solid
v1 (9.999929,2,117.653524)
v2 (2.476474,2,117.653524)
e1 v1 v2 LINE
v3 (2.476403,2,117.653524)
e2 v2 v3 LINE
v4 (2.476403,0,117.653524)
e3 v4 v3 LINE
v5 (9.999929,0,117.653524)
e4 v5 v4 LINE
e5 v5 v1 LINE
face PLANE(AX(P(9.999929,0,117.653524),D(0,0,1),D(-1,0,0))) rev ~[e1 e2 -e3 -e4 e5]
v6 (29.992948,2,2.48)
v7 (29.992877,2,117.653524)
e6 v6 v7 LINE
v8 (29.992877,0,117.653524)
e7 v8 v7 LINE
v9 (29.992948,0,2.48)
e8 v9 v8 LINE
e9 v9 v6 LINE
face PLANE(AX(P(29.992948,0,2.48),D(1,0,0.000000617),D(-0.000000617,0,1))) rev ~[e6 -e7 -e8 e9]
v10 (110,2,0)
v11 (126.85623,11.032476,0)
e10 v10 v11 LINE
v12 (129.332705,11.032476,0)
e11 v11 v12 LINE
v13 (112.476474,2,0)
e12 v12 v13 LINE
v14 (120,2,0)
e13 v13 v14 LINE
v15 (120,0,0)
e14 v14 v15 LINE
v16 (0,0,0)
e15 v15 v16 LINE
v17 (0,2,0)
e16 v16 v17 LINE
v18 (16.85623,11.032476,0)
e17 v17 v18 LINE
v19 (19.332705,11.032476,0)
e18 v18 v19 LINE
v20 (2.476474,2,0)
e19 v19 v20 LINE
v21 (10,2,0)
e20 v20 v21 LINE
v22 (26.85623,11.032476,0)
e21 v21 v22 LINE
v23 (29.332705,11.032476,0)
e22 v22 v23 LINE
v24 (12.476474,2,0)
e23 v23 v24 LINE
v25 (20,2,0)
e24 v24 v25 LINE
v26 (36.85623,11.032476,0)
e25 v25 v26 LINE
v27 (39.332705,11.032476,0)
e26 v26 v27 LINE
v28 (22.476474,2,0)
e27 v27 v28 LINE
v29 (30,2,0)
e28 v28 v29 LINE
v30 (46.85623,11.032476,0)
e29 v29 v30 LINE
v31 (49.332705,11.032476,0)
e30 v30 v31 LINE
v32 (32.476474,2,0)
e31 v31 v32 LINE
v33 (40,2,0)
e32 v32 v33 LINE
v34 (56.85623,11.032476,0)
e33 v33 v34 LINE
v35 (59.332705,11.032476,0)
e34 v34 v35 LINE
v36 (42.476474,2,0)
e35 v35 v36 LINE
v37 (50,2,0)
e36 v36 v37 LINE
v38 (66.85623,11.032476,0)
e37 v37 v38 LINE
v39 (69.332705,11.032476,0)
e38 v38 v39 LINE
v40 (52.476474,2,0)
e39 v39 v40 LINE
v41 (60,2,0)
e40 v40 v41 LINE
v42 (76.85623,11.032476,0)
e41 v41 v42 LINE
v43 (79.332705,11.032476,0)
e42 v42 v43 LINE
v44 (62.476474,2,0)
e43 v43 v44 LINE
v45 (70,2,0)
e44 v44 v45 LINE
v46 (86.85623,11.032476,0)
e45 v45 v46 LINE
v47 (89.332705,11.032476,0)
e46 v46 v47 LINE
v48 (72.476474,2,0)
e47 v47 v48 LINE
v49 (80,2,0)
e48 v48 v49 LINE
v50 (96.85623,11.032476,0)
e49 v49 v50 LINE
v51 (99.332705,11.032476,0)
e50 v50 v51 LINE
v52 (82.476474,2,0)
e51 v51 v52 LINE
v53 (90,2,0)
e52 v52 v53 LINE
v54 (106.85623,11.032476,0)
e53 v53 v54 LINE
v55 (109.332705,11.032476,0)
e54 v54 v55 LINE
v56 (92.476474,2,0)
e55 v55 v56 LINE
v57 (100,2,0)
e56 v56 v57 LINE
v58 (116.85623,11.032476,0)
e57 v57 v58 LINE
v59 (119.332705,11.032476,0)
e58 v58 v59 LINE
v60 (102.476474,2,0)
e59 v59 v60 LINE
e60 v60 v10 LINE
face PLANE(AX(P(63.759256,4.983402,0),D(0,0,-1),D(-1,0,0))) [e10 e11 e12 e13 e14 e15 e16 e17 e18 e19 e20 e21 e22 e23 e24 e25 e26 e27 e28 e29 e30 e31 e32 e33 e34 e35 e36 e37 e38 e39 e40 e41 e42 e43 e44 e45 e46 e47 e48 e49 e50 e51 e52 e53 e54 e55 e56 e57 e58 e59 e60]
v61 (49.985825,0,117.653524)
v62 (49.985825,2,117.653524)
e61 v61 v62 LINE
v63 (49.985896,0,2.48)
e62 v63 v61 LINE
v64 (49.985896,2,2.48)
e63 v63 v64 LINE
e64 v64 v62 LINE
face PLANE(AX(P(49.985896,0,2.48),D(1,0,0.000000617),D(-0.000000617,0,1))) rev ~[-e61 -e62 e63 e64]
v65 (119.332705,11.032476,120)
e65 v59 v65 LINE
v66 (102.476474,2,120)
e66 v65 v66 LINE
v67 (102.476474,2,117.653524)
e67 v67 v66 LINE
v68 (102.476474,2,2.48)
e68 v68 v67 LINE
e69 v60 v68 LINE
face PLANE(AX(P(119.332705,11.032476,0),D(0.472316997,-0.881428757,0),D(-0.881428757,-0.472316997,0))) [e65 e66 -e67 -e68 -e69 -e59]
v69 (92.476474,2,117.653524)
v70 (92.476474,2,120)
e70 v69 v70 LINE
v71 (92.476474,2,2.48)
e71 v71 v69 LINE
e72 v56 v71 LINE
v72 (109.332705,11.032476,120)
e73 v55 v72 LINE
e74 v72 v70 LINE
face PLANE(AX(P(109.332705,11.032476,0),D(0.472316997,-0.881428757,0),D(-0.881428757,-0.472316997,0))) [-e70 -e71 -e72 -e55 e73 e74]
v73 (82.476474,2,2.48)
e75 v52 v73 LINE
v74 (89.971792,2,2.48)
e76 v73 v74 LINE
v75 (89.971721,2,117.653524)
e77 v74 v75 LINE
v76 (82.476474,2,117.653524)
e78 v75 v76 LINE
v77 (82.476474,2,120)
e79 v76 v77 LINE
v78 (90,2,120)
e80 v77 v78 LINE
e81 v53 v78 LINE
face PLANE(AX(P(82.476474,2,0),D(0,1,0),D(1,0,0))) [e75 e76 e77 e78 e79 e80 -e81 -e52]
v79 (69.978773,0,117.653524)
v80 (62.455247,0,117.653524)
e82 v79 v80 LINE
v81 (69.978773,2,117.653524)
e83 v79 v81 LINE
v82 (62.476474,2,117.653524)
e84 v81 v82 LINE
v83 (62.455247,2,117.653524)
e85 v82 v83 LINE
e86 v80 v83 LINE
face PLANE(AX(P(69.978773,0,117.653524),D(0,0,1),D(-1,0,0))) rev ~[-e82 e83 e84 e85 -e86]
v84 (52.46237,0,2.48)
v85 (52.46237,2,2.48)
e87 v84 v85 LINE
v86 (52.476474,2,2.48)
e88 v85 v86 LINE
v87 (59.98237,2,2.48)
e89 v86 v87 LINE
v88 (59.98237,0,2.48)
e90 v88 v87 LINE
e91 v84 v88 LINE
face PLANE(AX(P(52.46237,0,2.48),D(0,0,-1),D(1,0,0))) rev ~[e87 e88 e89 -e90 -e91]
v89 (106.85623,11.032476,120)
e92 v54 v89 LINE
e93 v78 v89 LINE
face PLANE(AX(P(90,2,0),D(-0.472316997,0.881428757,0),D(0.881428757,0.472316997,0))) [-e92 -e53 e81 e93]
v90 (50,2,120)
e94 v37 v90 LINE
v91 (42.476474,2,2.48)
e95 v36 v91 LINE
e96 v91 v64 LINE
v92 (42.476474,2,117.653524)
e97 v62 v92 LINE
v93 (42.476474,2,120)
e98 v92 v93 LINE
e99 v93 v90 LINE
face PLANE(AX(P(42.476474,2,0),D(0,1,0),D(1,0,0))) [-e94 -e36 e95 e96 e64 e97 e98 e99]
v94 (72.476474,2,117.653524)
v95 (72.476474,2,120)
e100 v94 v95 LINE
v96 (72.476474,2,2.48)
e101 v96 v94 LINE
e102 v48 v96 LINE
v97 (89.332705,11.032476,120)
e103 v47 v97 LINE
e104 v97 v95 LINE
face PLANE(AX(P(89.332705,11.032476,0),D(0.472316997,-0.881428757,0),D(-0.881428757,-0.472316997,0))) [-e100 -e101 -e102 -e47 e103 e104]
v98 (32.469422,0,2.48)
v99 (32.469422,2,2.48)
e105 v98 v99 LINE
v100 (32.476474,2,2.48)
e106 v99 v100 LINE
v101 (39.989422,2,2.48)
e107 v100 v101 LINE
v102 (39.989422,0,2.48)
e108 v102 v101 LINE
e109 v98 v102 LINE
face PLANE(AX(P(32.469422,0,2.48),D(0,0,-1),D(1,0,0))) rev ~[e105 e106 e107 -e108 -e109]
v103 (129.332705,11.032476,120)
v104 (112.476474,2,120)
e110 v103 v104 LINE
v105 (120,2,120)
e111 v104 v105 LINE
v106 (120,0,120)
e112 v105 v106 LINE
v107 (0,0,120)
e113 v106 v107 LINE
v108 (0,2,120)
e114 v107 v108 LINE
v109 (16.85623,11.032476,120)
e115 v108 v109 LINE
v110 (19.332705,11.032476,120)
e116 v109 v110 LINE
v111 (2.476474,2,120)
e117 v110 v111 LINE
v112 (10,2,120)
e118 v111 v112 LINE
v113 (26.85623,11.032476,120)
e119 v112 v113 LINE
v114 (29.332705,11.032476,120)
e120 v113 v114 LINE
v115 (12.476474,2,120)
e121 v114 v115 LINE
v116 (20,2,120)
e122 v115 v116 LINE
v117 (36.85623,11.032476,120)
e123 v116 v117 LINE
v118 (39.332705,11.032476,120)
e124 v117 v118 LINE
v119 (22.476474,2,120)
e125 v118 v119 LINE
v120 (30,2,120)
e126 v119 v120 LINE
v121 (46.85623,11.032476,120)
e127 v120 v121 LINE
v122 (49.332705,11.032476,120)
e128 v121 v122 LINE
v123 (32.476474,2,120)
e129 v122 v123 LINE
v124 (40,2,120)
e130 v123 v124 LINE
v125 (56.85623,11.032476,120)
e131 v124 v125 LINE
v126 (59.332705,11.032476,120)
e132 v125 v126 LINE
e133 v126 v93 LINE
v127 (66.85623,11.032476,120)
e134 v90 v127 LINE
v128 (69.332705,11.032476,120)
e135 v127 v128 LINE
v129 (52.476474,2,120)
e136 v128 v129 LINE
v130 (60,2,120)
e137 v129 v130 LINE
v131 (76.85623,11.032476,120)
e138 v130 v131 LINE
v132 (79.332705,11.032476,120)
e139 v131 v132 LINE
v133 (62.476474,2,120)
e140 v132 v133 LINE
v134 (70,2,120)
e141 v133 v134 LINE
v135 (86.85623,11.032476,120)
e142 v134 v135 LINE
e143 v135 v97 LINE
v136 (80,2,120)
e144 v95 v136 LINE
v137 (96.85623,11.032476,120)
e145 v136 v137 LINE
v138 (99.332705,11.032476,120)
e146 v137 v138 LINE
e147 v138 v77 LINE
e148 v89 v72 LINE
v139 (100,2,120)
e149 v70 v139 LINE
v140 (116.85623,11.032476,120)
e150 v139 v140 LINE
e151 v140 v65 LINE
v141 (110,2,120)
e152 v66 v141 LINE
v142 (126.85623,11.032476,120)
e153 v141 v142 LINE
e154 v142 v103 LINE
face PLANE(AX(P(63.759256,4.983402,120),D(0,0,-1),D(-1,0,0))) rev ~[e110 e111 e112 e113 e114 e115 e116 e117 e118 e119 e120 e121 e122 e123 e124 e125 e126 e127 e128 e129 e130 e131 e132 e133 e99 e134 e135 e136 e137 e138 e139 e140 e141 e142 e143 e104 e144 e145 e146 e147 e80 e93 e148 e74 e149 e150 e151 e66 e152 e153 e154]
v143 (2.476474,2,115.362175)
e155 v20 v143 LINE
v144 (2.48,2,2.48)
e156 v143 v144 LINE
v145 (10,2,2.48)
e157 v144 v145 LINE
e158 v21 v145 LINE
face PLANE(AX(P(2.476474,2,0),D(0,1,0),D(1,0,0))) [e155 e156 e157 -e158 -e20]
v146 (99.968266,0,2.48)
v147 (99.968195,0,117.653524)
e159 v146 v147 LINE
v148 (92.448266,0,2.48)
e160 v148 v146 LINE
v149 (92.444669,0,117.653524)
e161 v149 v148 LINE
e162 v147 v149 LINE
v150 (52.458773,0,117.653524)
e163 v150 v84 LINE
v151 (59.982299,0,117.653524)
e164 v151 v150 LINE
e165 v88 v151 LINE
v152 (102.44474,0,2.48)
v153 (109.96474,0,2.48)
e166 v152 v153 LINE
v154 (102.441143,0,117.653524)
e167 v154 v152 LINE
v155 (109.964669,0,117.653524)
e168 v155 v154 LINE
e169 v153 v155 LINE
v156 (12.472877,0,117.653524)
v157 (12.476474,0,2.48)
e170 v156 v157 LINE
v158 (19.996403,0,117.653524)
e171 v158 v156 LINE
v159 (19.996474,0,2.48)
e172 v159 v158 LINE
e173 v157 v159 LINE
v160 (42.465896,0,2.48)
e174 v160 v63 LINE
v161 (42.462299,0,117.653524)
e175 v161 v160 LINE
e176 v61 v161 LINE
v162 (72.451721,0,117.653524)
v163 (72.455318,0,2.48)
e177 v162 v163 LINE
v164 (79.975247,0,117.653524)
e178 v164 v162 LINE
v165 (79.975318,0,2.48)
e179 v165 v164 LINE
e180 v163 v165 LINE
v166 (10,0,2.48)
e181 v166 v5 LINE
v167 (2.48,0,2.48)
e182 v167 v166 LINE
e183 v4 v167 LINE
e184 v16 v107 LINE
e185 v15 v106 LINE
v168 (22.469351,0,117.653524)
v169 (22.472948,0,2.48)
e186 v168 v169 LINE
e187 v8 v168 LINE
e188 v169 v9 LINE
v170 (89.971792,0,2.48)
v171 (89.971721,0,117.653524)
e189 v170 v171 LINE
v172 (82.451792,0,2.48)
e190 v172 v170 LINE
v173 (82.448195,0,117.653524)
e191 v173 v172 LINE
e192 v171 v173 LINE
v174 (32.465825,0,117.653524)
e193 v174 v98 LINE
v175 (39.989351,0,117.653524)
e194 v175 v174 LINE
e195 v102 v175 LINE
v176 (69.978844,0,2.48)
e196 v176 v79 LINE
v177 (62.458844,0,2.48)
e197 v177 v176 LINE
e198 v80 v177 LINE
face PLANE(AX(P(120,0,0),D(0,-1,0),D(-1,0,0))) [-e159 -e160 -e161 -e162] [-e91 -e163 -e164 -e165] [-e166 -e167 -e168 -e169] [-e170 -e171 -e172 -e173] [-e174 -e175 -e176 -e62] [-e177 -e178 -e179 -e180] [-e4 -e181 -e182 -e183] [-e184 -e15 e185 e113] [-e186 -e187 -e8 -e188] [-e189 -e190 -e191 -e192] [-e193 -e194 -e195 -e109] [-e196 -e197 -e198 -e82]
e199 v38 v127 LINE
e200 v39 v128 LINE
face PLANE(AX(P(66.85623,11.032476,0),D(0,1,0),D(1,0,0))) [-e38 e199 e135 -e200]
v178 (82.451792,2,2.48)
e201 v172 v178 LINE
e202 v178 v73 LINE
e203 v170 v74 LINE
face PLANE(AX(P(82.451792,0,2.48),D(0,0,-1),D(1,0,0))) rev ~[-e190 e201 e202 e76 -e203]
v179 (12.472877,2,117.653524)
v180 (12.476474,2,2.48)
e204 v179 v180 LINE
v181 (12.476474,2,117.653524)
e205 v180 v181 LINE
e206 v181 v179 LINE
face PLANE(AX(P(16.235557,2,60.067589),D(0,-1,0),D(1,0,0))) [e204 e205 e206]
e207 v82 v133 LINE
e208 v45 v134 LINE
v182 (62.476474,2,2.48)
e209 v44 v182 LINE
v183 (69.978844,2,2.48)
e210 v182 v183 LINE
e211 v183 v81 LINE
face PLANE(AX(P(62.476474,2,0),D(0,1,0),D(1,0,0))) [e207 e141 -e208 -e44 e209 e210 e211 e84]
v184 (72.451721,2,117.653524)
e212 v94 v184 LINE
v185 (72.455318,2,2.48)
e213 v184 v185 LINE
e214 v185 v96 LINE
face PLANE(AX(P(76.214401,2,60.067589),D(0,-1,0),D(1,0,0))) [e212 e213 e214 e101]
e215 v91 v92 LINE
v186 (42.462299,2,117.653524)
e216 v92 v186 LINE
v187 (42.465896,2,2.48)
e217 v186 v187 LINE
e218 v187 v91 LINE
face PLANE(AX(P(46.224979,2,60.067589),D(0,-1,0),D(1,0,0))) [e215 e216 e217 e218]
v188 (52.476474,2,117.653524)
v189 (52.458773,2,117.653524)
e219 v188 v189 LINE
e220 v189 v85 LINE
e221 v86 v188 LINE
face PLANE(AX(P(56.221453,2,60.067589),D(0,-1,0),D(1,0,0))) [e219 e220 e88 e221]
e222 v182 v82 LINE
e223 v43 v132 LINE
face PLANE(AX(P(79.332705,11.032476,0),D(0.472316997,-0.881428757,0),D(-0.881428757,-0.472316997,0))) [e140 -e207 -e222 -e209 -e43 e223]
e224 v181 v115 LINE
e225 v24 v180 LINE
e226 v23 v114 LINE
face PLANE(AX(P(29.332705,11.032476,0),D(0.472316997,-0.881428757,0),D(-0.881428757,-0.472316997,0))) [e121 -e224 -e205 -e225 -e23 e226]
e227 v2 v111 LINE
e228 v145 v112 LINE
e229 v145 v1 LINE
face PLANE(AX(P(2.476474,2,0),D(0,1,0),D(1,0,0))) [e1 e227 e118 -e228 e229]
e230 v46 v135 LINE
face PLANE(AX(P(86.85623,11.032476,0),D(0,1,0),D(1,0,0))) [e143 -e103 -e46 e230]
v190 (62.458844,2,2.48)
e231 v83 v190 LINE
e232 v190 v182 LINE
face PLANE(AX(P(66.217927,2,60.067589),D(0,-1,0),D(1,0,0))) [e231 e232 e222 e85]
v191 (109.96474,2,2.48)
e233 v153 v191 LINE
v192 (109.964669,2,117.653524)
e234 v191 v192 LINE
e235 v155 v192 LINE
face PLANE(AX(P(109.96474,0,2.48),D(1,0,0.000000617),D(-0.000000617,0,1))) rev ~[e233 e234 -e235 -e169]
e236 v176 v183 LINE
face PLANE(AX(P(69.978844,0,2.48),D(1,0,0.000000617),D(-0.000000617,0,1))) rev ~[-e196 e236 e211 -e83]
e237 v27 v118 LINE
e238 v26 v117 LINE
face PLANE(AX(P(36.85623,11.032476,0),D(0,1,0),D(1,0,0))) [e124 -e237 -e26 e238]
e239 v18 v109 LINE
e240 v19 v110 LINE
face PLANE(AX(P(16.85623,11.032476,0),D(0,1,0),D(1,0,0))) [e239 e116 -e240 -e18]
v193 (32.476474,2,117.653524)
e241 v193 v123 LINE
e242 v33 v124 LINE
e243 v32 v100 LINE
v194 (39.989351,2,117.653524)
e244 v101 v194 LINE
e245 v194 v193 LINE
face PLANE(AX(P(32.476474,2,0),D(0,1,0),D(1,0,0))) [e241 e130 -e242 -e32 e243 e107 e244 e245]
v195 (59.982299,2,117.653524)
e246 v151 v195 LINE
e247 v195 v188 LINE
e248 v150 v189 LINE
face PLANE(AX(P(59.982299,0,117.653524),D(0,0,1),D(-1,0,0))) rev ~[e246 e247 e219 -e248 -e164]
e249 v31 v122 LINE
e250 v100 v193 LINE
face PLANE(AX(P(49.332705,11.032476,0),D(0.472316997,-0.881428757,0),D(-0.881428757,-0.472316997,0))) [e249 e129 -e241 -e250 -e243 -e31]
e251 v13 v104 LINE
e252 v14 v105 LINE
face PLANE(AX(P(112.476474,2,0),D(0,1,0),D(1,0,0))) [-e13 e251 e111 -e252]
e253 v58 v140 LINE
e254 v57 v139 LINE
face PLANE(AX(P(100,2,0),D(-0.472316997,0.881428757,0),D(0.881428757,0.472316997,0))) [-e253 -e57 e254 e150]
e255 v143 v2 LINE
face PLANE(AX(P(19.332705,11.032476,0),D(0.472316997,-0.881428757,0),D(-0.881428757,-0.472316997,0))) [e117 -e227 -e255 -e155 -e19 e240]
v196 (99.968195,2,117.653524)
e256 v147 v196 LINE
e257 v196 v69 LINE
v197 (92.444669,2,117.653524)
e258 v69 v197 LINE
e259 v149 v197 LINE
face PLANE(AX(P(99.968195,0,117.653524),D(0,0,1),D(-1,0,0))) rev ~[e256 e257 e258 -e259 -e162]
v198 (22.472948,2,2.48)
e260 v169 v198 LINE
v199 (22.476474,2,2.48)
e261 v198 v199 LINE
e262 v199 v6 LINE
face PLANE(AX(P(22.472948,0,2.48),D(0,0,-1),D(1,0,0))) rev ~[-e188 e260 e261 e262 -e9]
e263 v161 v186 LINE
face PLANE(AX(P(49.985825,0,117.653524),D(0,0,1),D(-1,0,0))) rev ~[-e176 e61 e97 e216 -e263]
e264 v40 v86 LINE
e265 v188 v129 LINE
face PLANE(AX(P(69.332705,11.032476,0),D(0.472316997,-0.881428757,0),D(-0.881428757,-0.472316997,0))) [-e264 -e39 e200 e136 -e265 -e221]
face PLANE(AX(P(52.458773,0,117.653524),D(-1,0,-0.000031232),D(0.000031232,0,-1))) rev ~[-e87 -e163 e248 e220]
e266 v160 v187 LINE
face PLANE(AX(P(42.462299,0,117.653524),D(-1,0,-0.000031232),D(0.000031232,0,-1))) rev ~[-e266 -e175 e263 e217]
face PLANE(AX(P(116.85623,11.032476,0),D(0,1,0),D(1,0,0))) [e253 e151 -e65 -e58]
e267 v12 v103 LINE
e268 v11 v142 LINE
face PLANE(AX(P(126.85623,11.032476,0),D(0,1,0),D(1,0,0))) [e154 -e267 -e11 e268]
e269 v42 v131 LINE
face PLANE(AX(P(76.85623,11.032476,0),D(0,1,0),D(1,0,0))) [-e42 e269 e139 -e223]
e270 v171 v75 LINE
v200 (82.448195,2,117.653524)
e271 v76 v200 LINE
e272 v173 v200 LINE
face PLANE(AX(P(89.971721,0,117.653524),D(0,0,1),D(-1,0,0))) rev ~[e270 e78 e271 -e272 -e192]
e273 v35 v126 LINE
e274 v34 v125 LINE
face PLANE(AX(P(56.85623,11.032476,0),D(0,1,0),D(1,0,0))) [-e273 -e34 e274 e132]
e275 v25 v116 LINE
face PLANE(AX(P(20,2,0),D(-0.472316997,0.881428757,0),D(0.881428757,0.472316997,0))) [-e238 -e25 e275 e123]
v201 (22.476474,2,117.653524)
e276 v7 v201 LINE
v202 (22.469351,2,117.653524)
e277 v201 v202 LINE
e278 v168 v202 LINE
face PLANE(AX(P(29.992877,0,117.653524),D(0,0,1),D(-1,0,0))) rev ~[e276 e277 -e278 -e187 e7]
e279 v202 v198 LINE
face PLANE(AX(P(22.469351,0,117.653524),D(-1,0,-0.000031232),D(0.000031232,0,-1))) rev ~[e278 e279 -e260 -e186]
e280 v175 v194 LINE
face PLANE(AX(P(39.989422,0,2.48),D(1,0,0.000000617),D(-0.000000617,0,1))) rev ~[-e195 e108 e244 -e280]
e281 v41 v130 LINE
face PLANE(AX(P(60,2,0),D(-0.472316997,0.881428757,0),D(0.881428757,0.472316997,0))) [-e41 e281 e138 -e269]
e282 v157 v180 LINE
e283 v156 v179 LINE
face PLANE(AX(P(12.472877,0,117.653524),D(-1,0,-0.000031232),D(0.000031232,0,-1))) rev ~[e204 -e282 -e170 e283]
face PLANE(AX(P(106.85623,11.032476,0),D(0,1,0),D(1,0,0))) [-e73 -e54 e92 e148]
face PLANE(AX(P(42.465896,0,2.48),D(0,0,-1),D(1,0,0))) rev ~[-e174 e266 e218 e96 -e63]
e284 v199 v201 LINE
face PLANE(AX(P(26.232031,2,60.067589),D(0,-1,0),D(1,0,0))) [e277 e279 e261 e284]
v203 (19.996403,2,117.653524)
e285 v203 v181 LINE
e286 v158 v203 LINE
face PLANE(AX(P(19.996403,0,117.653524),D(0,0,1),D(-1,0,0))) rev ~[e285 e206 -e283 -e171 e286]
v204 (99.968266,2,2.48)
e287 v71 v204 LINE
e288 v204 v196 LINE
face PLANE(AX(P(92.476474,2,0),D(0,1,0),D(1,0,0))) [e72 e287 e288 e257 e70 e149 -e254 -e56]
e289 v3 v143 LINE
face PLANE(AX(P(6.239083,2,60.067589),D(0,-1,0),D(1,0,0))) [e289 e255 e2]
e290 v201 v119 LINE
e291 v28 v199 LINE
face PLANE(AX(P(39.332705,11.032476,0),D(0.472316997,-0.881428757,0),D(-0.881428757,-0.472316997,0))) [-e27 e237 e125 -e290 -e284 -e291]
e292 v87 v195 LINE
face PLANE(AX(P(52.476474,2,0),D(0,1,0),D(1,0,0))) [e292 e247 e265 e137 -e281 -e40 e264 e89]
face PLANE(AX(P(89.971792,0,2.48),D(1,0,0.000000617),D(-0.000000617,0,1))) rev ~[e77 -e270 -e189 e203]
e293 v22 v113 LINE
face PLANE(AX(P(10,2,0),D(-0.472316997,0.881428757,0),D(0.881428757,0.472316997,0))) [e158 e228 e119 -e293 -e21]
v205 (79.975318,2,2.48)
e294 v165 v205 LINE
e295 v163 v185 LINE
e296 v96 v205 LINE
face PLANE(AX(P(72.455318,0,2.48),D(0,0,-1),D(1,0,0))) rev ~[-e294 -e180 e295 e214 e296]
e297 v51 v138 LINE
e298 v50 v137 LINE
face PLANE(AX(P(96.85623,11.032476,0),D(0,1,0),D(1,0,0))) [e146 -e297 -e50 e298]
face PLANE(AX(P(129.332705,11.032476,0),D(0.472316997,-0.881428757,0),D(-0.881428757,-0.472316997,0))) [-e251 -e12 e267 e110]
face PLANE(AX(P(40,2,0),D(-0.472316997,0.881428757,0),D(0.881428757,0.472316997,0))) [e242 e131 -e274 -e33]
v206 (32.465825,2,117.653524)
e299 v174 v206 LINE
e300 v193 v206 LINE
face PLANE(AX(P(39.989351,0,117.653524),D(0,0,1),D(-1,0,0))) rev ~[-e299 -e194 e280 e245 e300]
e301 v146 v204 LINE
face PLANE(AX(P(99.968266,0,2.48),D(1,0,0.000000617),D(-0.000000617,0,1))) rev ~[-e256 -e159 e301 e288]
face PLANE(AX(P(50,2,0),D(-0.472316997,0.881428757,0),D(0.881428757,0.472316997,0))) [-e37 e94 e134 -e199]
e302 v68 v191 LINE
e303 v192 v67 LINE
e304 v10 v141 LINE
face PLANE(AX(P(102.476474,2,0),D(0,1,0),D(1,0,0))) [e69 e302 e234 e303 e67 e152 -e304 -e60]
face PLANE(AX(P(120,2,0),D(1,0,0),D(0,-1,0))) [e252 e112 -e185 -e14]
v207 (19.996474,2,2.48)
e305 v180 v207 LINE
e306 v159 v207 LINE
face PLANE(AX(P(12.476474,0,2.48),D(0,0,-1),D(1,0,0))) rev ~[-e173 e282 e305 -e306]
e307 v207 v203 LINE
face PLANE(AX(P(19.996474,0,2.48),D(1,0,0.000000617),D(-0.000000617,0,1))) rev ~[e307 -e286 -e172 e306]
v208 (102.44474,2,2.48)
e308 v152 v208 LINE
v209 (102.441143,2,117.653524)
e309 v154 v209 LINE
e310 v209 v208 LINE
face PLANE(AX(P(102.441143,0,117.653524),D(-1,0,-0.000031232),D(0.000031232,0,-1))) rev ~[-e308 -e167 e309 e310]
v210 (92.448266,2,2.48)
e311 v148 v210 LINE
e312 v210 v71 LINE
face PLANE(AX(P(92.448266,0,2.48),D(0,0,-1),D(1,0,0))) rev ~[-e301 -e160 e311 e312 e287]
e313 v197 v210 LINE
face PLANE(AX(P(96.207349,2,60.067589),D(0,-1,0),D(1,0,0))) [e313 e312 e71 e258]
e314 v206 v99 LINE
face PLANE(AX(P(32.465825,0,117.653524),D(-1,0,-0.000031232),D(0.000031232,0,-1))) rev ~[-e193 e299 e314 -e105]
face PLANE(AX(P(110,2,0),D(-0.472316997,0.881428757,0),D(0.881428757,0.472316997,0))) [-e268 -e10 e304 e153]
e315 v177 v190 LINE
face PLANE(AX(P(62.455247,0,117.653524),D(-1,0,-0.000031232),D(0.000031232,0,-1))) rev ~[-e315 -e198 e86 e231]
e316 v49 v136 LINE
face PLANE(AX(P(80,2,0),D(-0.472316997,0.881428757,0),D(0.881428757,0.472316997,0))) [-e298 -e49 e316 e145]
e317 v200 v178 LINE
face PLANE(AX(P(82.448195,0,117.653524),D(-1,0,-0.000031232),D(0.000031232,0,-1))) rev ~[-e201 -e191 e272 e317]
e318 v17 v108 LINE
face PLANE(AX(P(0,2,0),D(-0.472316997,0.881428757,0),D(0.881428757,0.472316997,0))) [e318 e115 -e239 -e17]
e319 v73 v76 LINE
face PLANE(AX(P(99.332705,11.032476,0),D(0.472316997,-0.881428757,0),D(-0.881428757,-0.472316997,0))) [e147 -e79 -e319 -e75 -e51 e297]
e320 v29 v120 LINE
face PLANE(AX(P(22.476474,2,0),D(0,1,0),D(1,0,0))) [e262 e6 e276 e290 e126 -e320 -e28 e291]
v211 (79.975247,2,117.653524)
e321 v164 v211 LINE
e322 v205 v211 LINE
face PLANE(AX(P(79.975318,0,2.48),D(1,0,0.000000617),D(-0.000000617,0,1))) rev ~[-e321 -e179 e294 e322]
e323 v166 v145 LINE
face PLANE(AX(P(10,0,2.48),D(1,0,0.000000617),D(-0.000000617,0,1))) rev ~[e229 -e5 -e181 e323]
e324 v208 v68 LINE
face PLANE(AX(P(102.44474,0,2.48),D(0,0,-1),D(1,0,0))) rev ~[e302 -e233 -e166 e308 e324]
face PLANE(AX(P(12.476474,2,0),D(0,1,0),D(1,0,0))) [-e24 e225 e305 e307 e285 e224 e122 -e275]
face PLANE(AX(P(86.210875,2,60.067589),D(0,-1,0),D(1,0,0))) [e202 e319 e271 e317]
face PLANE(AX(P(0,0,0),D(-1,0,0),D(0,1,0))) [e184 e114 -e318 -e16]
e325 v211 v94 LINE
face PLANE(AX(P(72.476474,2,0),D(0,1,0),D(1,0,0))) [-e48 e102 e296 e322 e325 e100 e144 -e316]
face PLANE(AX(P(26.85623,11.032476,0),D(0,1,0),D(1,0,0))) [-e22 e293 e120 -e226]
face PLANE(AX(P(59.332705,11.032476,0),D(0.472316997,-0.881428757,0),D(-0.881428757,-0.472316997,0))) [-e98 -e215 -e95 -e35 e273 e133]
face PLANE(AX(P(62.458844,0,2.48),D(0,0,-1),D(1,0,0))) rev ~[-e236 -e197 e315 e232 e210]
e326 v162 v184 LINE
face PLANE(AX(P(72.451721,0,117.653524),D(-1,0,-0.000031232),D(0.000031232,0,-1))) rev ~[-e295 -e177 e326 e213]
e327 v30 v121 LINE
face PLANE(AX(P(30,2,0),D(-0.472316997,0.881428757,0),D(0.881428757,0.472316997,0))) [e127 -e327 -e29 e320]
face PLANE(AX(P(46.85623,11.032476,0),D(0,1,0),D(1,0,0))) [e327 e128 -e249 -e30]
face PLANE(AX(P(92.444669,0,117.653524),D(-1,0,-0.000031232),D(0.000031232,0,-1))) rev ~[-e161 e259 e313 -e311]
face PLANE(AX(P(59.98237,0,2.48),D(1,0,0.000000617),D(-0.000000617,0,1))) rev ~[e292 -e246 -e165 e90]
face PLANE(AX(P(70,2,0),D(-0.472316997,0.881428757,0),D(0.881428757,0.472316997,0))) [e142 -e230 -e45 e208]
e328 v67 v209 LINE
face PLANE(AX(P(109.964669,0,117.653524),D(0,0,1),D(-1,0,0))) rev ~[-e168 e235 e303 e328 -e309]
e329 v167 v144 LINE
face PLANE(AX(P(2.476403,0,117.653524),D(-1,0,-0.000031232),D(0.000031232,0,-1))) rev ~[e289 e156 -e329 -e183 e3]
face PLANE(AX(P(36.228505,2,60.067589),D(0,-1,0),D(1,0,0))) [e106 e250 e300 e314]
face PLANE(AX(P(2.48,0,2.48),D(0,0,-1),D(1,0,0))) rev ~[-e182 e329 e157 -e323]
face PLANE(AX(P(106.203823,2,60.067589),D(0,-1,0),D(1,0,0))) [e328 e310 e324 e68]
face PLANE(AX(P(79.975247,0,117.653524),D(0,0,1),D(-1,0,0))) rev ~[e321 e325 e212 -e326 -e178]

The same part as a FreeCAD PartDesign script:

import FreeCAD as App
import Part
import Sketcher

V = App.Vector

doc = App.newDocument("Part")
body = doc.addObject("PartDesign::Body", "Body")

sketch1 = body.newObject("Sketcher::SketchObject", "Sketch")
sketch1.AttachmentSupport = (doc.getObject("XY_Plane"), [""])
sketch1.MapMode = "FlatFace"
sketch1.addGeometry(Part.LineSegment(V(16.85623, 11.032476, 0), V(0, 2, 0)), False)
sketch1.addGeometry(Part.LineSegment(V(0, 2, 0), V(0, 0, 0)), False)
sketch1.addGeometry(Part.LineSegment(V(0, 0, 0), V(120, 0, 0)), False)
sketch1.addGeometry(Part.LineSegment(V(120, 0, 0), V(120, 2, 0)), False)
sketch1.addGeometry(Part.LineSegment(V(120, 2, 0), V(112.476474, 2, 0)), False)
sketch1.addGeometry(Part.LineSegment(V(112.476474, 2, 0), V(129.332705, 11.032476, 0)), False)
sketch1.addGeometry(Part.LineSegment(V(129.332705, 11.032476, 0), V(126.85623, 11.032476, 0)), False)
sketch1.addGeometry(Part.LineSegment(V(126.85623, 11.032476, 0), V(110, 2, 0)), False)
sketch1.addGeometry(Part.LineSegment(V(110, 2, 0), V(102.476474, 2, 0)), False)
sketch1.addGeometry(Part.LineSegment(V(102.476474, 2, 0), V(119.332705, 11.032476, 0)), False)
sketch1.addGeometry(Part.LineSegment(V(119.332705, 11.032476, 0), V(116.85623, 11.032476, 0)), False)
sketch1.addGeometry(Part.LineSegment(V(116.85623, 11.032476, 0), V(100, 2, 0)), False)
sketch1.addGeometry(Part.LineSegment(V(100, 2, 0), V(92.476474, 2, 0)), False)
sketch1.addGeometry(Part.LineSegment(V(92.476474, 2, 0), V(109.332705, 11.032476, 0)), False)
sketch1.addGeometry(Part.LineSegment(V(109.332705, 11.032476, 0), V(106.85623, 11.032476, 0)), False)
sketch1.addGeometry(Part.LineSegment(V(106.85623, 11.032476, 0), V(90, 2, 0)), False)
sketch1.addGeometry(Part.LineSegment(V(90, 2, 0), V(82.476474, 2, 0)), False)
sketch1.addGeometry(Part.LineSegment(V(82.476474, 2, 0), V(99.332705, 11.032476, 0)), False)
sketch1.addGeometry(Part.LineSegment(V(99.332705, 11.032476, 0), V(96.85623, 11.032476, 0)), False)
sketch1.addGeometry(Part.LineSegment(V(96.85623, 11.032476, 0), V(80, 2, 0)), False)
sketch1.addGeometry(Part.LineSegment(V(80, 2, 0), V(72.476474, 2, 0)), False)
sketch1.addGeometry(Part.LineSegment(V(72.476474, 2, 0), V(89.332705, 11.032476, 0)), False)
sketch1.addGeometry(Part.LineSegment(V(89.332705, 11.032476, 0), V(86.85623, 11.032476, 0)), False)
sketch1.addGeometry(Part.LineSegment(V(86.85623, 11.032476, 0), V(70, 2, 0)), False)
sketch1.addGeometry(Part.LineSegment(V(70, 2, 0), V(62.476474, 2, 0)), False)
sketch1.addGeometry(Part.LineSegment(V(62.476474, 2, 0), V(79.332705, 11.032476, 0)), False)
sketch1.addGeometry(Part.LineSegment(V(79.332705, 11.032476, 0), V(76.85623, 11.032476, 0)), False)
sketch1.addGeometry(Part.LineSegment(V(76.85623, 11.032476, 0), V(60, 2, 0)), False)
sketch1.addGeometry(Part.LineSegment(V(60, 2, 0), V(52.476474, 2, 0)), False)
sketch1.addGeometry(Part.LineSegment(V(52.476474, 2, 0), V(69.332705, 11.032476, 0)), False)
sketch1.addGeometry(Part.LineSegment(V(69.332705, 11.032476, 0), V(66.85623, 11.032476, 0)), False)
sketch1.addGeometry(Part.LineSegment(V(66.85623, 11.032476, 0), V(50, 2, 0)), False)
sketch1.addGeometry(Part.LineSegment(V(50, 2, 0), V(42.476474, 2, 0)), False)
sketch1.addGeometry(Part.LineSegment(V(42.476474, 2, 0), V(59.332705, 11.032476, 0)), False)
sketch1.addGeometry(Part.LineSegment(V(59.332705, 11.032476, 0), V(56.85623, 11.032476, 0)), False)
sketch1.addGeometry(Part.LineSegment(V(56.85623, 11.032476, 0), V(40, 2, 0)), False)
sketch1.addGeometry(Part.LineSegment(V(40, 2, 0), V(32.476474, 2, 0)), False)
sketch1.addGeometry(Part.LineSegment(V(32.476474, 2, 0), V(49.332705, 11.032476, 0)), False)
sketch1.addGeometry(Part.LineSegment(V(49.332705, 11.032476, 0), V(46.85623, 11.032476, 0)), False)
sketch1.addGeometry(Part.LineSegment(V(46.85623, 11.032476, 0), V(30, 2, 0)), False)
sketch1.addGeometry(Part.LineSegment(V(30, 2, 0), V(22.476474, 2, 0)), False)
sketch1.addGeometry(Part.LineSegment(V(22.476474, 2, 0), V(39.332705, 11.032476, 0)), False)
sketch1.addGeometry(Part.LineSegment(V(39.332705, 11.032476, 0), V(36.85623, 11.032476, 0)), False)
sketch1.addGeometry(Part.LineSegment(V(36.85623, 11.032476, 0), V(20, 2, 0)), False)
sketch1.addGeometry(Part.LineSegment(V(20, 2, 0), V(12.476474, 2, 0)), False)
sketch1.addGeometry(Part.LineSegment(V(12.476474, 2, 0), V(29.332705, 11.032476, 0)), False)
sketch1.addGeometry(Part.LineSegment(V(29.332705, 11.032476, 0), V(26.85623, 11.032476, 0)), False)
sketch1.addGeometry(Part.LineSegment(V(26.85623, 11.032476, 0), V(10, 2, 0)), False)
sketch1.addGeometry(Part.LineSegment(V(10, 2, 0), V(2.476474, 2, 0)), False)
sketch1.addGeometry(Part.LineSegment(V(2.476474, 2, 0), V(19.332705, 11.032476, 0)), False)
sketch1.addGeometry(Part.LineSegment(V(19.332705, 11.032476, 0), V(16.85623, 11.032476, 0)), False)
sketch1.addConstraint(Sketcher.Constraint("Coincident", 0, 2, 1, 1))
sketch1.addConstraint(Sketcher.Constraint("Coincident", 1, 2, 2, 1))
sketch1.addConstraint(Sketcher.Constraint("Coincident", 2, 2, 3, 1))
sketch1.addConstraint(Sketcher.Constraint("Coincident", 3, 2, 4, 1))
sketch1.addConstraint(Sketcher.Constraint("Coincident", 4, 2, 5, 1))
sketch1.addConstraint(Sketcher.Constraint("Coincident", 5, 2, 6, 1))
sketch1.addConstraint(Sketcher.Constraint("Coincident", 6, 2, 7, 1))
sketch1.addConstraint(Sketcher.Constraint("Coincident", 7, 2, 8, 1))
sketch1.addConstraint(Sketcher.Constraint("Coincident", 8, 2, 9, 1))
sketch1.addConstraint(Sketcher.Constraint("Coincident", 9, 2, 10, 1))
sketch1.addConstraint(Sketcher.Constraint("Coincident", 10, 2, 11, 1))
sketch1.addConstraint(Sketcher.Constraint("Coincident", 11, 2, 12, 1))
sketch1.addConstraint(Sketcher.Constraint("Coincident", 12, 2, 13, 1))
sketch1.addConstraint(Sketcher.Constraint("Coincident", 13, 2, 14, 1))
sketch1.addConstraint(Sketcher.Constraint("Coincident", 14, 2, 15, 1))
sketch1.addConstraint(Sketcher.Constraint("Coincident", 15, 2, 16, 1))
sketch1.addConstraint(Sketcher.Constraint("Coincident", 16, 2, 17, 1))
sketch1.addConstraint(Sketcher.Constraint("Coincident", 17, 2, 18, 1))
sketch1.addConstraint(Sketcher.Constraint("Coincident", 18, 2, 19, 1))
sketch1.addConstraint(Sketcher.Constraint("Coincident", 19, 2, 20, 1))
sketch1.addConstraint(Sketcher.Constraint("Coincident", 20, 2, 21, 1))
sketch1.addConstraint(Sketcher.Constraint("Coincident", 21, 2, 22, 1))
sketch1.addConstraint(Sketcher.Constraint("Coincident", 22, 2, 23, 1))
sketch1.addConstraint(Sketcher.Constraint("Coincident", 23, 2, 24, 1))
sketch1.addConstraint(Sketcher.Constraint("Coincident", 24, 2, 25, 1))
sketch1.addConstraint(Sketcher.Constraint("Coincident", 25, 2, 26, 1))
sketch1.addConstraint(Sketcher.Constraint("Coincident", 26, 2, 27, 1))
sketch1.addConstraint(Sketcher.Constraint("Coincident", 27, 2, 28, 1))
sketch1.addConstraint(Sketcher.Constraint("Coincident", 28, 2, 29, 1))
sketch1.addConstraint(Sketcher.Constraint("Coincident", 29, 2, 30, 1))
sketch1.addConstraint(Sketcher.Constraint("Coincident", 30, 2, 31, 1))
sketch1.addConstraint(Sketcher.Constraint("Coincident", 31, 2, 32, 1))
sketch1.addConstraint(Sketcher.Constraint("Coincident", 32, 2, 33, 1))
sketch1.addConstraint(Sketcher.Constraint("Coincident", 33, 2, 34, 1))
sketch1.addConstraint(Sketcher.Constraint("Coincident", 34, 2, 35, 1))
sketch1.addConstraint(Sketcher.Constraint("Coincident", 35, 2, 36, 1))
sketch1.addConstraint(Sketcher.Constraint("Coincident", 36, 2, 37, 1))
sketch1.addConstraint(Sketcher.Constraint("Coincident", 37, 2, 38, 1))
sketch1.addConstraint(Sketcher.Constraint("Coincident", 38, 2, 39, 1))
sketch1.addConstraint(Sketcher.Constraint("Coincident", 39, 2, 40, 1))
sketch1.addConstraint(Sketcher.Constraint("Coincident", 40, 2, 41, 1))
sketch1.addConstraint(Sketcher.Constraint("Coincident", 41, 2, 42, 1))
sketch1.addConstraint(Sketcher.Constraint("Coincident", 42, 2, 43, 1))
sketch1.addConstraint(Sketcher.Constraint("Coincident", 43, 2, 44, 1))
sketch1.addConstraint(Sketcher.Constraint("Coincident", 44, 2, 45, 1))
sketch1.addConstraint(Sketcher.Constraint("Coincident", 45, 2, 46, 1))
sketch1.addConstraint(Sketcher.Constraint("Coincident", 46, 2, 47, 1))
sketch1.addConstraint(Sketcher.Constraint("Coincident", 47, 2, 48, 1))
sketch1.addConstraint(Sketcher.Constraint("Coincident", 48, 2, 49, 1))
sketch1.addConstraint(Sketcher.Constraint("Coincident", 49, 2, 50, 1))
sketch1.addConstraint(Sketcher.Constraint("Coincident", 50, 2, 0, 1))
sketch1.addConstraint(Sketcher.Constraint("Vertical", 1))
sketch1.addConstraint(Sketcher.Constraint("Horizontal", 2))
sketch1.addConstraint(Sketcher.Constraint("Vertical", 3))
sketch1.addConstraint(Sketcher.Constraint("Horizontal", 4))
sketch1.addConstraint(Sketcher.Constraint("Horizontal", 6))
sketch1.addConstraint(Sketcher.Constraint("Horizontal", 8))
sketch1.addConstraint(Sketcher.Constraint("Horizontal", 10))
sketch1.addConstraint(Sketcher.Constraint("Horizontal", 12))
sketch1.addConstraint(Sketcher.Constraint("Horizontal", 14))
sketch1.addConstraint(Sketcher.Constraint("Horizontal", 16))
sketch1.addConstraint(Sketcher.Constraint("Horizontal", 18))
sketch1.addConstraint(Sketcher.Constraint("Horizontal", 20))
sketch1.addConstraint(Sketcher.Constraint("Horizontal", 22))
sketch1.addConstraint(Sketcher.Constraint("Horizontal", 24))
sketch1.addConstraint(Sketcher.Constraint("Horizontal", 26))
sketch1.addConstraint(Sketcher.Constraint("Horizontal", 28))
sketch1.addConstraint(Sketcher.Constraint("Horizontal", 30))
sketch1.addConstraint(Sketcher.Constraint("Horizontal", 32))
sketch1.addConstraint(Sketcher.Constraint("Horizontal", 34))
sketch1.addConstraint(Sketcher.Constraint("Horizontal", 36))
sketch1.addConstraint(Sketcher.Constraint("Horizontal", 38))
sketch1.addConstraint(Sketcher.Constraint("Horizontal", 40))
sketch1.addConstraint(Sketcher.Constraint("Horizontal", 42))
sketch1.addConstraint(Sketcher.Constraint("Horizontal", 44))
sketch1.addConstraint(Sketcher.Constraint("Horizontal", 46))
sketch1.addConstraint(Sketcher.Constraint("Horizontal", 48))
sketch1.addConstraint(Sketcher.Constraint("Horizontal", 50))
sketch1.addConstraint(Sketcher.Constraint("Coincident", 1, 2, -1, 1))
sketch1.addConstraint(Sketcher.Constraint("Parallel", 0, 5))
sketch1.addConstraint(Sketcher.Constraint("Parallel", 5, 7))
sketch1.addConstraint(Sketcher.Constraint("Parallel", 7, 9))
sketch1.addConstraint(Sketcher.Constraint("Parallel", 9, 11))
sketch1.addConstraint(Sketcher.Constraint("Parallel", 11, 13))
sketch1.addConstraint(Sketcher.Constraint("Parallel", 13, 15))
sketch1.addConstraint(Sketcher.Constraint("Parallel", 15, 17))
sketch1.addConstraint(Sketcher.Constraint("Parallel", 17, 19))
sketch1.addConstraint(Sketcher.Constraint("Parallel", 19, 21))
sketch1.addConstraint(Sketcher.Constraint("Parallel", 21, 23))
sketch1.addConstraint(Sketcher.Constraint("Parallel", 23, 25))
sketch1.addConstraint(Sketcher.Constraint("Parallel", 25, 27))
sketch1.addConstraint(Sketcher.Constraint("Parallel", 27, 29))
sketch1.addConstraint(Sketcher.Constraint("Parallel", 29, 31))
sketch1.addConstraint(Sketcher.Constraint("Parallel", 31, 33))
sketch1.addConstraint(Sketcher.Constraint("Parallel", 33, 35))
sketch1.addConstraint(Sketcher.Constraint("Parallel", 35, 37))
sketch1.addConstraint(Sketcher.Constraint("Parallel", 37, 39))
sketch1.addConstraint(Sketcher.Constraint("Parallel", 39, 41))
sketch1.addConstraint(Sketcher.Constraint("Parallel", 41, 43))
sketch1.addConstraint(Sketcher.Constraint("Parallel", 43, 45))
sketch1.addConstraint(Sketcher.Constraint("Parallel", 45, 47))
sketch1.addConstraint(Sketcher.Constraint("Parallel", 47, 49))
sketch1.addConstraint(Sketcher.Constraint("Horizontal", 0, 2, 3, 2))
sketch1.addConstraint(Sketcher.Constraint("Horizontal", 4, 2, 7, 2))
sketch1.addConstraint(Sketcher.Constraint("Horizontal", 6, 2, 9, 2))
sketch1.addConstraint(Sketcher.Constraint("Horizontal", 8, 2, 11, 2))
sketch1.addConstraint(Sketcher.Constraint("Horizontal", 10, 2, 13, 2))
sketch1.addConstraint(Sketcher.Constraint("Horizontal", 12, 2, 15, 2))
sketch1.addConstraint(Sketcher.Constraint("Horizontal", 14, 2, 17, 2))
sketch1.addConstraint(Sketcher.Constraint("Horizontal", 16, 2, 19, 2))
sketch1.addConstraint(Sketcher.Constraint("Horizontal", 18, 2, 21, 2))
sketch1.addConstraint(Sketcher.Constraint("Horizontal", 20, 2, 23, 2))
sketch1.addConstraint(Sketcher.Constraint("Horizontal", 22, 2, 25, 2))
sketch1.addConstraint(Sketcher.Constraint("Horizontal", 24, 2, 27, 2))
sketch1.addConstraint(Sketcher.Constraint("Horizontal", 26, 2, 29, 2))
sketch1.addConstraint(Sketcher.Constraint("Horizontal", 28, 2, 31, 2))
sketch1.addConstraint(Sketcher.Constraint("Horizontal", 30, 2, 33, 2))
sketch1.addConstraint(Sketcher.Constraint("Horizontal", 32, 2, 35, 2))
sketch1.addConstraint(Sketcher.Constraint("Horizontal", 34, 2, 37, 2))
sketch1.addConstraint(Sketcher.Constraint("Horizontal", 36, 2, 39, 2))
sketch1.addConstraint(Sketcher.Constraint("Horizontal", 38, 2, 41, 2))
sketch1.addConstraint(Sketcher.Constraint("Horizontal", 40, 2, 43, 2))
sketch1.addConstraint(Sketcher.Constraint("Horizontal", 42, 2, 45, 2))
sketch1.addConstraint(Sketcher.Constraint("Horizontal", 44, 2, 47, 2))
sketch1.addConstraint(Sketcher.Constraint("Horizontal", 46, 2, 49, 2))
sketch1.addConstraint(Sketcher.Constraint("Equal", 4, 8))
sketch1.addConstraint(Sketcher.Constraint("Equal", 6, 10))
sketch1.addConstraint(Sketcher.Constraint("Equal", 8, 12))
sketch1.addConstraint(Sketcher.Constraint("Equal", 10, 14))
sketch1.addConstraint(Sketcher.Constraint("Equal", 12, 16))
sketch1.addConstraint(Sketcher.Constraint("Equal", 14, 18))
sketch1.addConstraint(Sketcher.Constraint("Equal", 16, 20))
sketch1.addConstraint(Sketcher.Constraint("Equal", 18, 22))
sketch1.addConstraint(Sketcher.Constraint("Equal", 20, 24))
sketch1.addConstraint(Sketcher.Constraint("Equal", 22, 26))
sketch1.addConstraint(Sketcher.Constraint("Equal", 24, 28))
sketch1.addConstraint(Sketcher.Constraint("Equal", 26, 30))
sketch1.addConstraint(Sketcher.Constraint("Equal", 28, 32))
sketch1.addConstraint(Sketcher.Constraint("Equal", 30, 34))
sketch1.addConstraint(Sketcher.Constraint("Equal", 32, 36))
sketch1.addConstraint(Sketcher.Constraint("Equal", 34, 38))
sketch1.addConstraint(Sketcher.Constraint("Equal", 36, 40))
sketch1.addConstraint(Sketcher.Constraint("Equal", 38, 42))
sketch1.addConstraint(Sketcher.Constraint("Equal", 40, 44))
sketch1.addConstraint(Sketcher.Constraint("Equal", 42, 46))
sketch1.addConstraint(Sketcher.Constraint("Equal", 44, 48))
sketch1.addConstraint(Sketcher.Constraint("Equal", 46, 50))
sketch1.addConstraint(Sketcher.Constraint("DistanceX", 2, 1, 2, 2, 120.0))
sketch1.addConstraint(Sketcher.Constraint("DistanceY", 1, 2, 1, 1, 2.0))
sketch1.addConstraint(Sketcher.Constraint("DistanceX", 4, 2, 4, 1, 7.523526))
sketch1.addConstraint(Sketcher.Constraint("DistanceX", -1, 1, 6, 2, 126.85623))
sketch1.addConstraint(Sketcher.Constraint("Distance", 0, 19.123758))
pad1 = body.newObject("PartDesign::Pad", "Pad")
pad1.Profile = sketch1
pad1.Length = 120

sketch2 = body.newObject("Sketcher::SketchObject", "Sketch001")
sketch2.AttachmentSupport = (doc.getObject("XZ_Plane"), [""])
sketch2.MapMode = "FlatFace"
sketch2.addGeometry(Part.LineSegment(V(2.476403, 117.653524, 0), V(2.48, 2.48, 0)), False)
sketch2.addGeometry(Part.LineSegment(V(2.48, 2.48, 0), V(10, 2.48, 0)), False)
sketch2.addGeometry(Part.LineSegment(V(10, 2.48, 0), V(9.999929, 117.653524, 0)), False)
sketch2.addGeometry(Part.LineSegment(V(9.999929, 117.653524, 0), V(2.476403, 117.653524, 0)), False)
sketch2.addGeometry(Part.LineSegment(V(19.996403, 117.653524, 0), V(12.472877, 117.653524, 0)), False)
sketch2.addGeometry(Part.LineSegment(V(12.472877, 117.653524, 0), V(12.476474, 2.48, 0)), False)
sketch2.addGeometry(Part.LineSegment(V(12.476474, 2.48, 0), V(19.996474, 2.48, 0)), False)
sketch2.addGeometry(Part.LineSegment(V(19.996474, 2.48, 0), V(19.996403, 117.653524, 0)), False)
sketch2.addGeometry(Part.LineSegment(V(32.465825, 117.653524, 0), V(32.469422, 2.48, 0)), False)
sketch2.addGeometry(Part.LineSegment(V(32.469422, 2.48, 0), V(39.989422, 2.48, 0)), False)
sketch2.addGeometry(Part.LineSegment(V(39.989422, 2.48, 0), V(39.989351, 117.653524, 0)), False)
sketch2.addGeometry(Part.LineSegment(V(39.989351, 117.653524, 0), V(32.465825, 117.653524, 0)), False)
sketch2.addGeometry(Part.LineSegment(V(42.462299, 117.653524, 0), V(42.465896, 2.48, 0)), False)
sketch2.addGeometry(Part.LineSegment(V(42.465896, 2.48, 0), V(49.985896, 2.48, 0)), False)
sketch2.addGeometry(Part.LineSegment(V(49.985896, 2.48, 0), V(49.985825, 117.653524, 0)), False)
sketch2.addGeometry(Part.LineSegment(V(49.985825, 117.653524, 0), V(42.462299, 117.653524, 0)), False)
sketch2.addGeometry(Part.LineSegment(V(52.458773, 117.653524, 0), V(52.46237, 2.48, 0)), False)
sketch2.addGeometry(Part.LineSegment(V(52.46237, 2.48, 0), V(59.98237, 2.48, 0)), False)
sketch2.addGeometry(Part.LineSegment(V(59.98237, 2.48, 0), V(59.982299, 117.653524, 0)), False)
sketch2.addGeometry(Part.LineSegment(V(59.982299, 117.653524, 0), V(52.458773, 117.653524, 0)), False)
sketch2.addGeometry(Part.LineSegment(V(62.455247, 117.653524, 0), V(62.458844, 2.48, 0)), False)
sketch2.addGeometry(Part.LineSegment(V(62.458844, 2.48, 0), V(69.978844, 2.48, 0)), False)
sketch2.addGeometry(Part.LineSegment(V(69.978844, 2.48, 0), V(69.978773, 117.653524, 0)), False)
sketch2.addGeometry(Part.LineSegment(V(69.978773, 117.653524, 0), V(62.455247, 117.653524, 0)), False)
sketch2.addGeometry(Part.LineSegment(V(72.451721, 117.653524, 0), V(72.455318, 2.48, 0)), False)
sketch2.addGeometry(Part.LineSegment(V(72.455318, 2.48, 0), V(79.975318, 2.48, 0)), False)
sketch2.addGeometry(Part.LineSegment(V(79.975318, 2.48, 0), V(79.975247, 117.653524, 0)), False)
sketch2.addGeometry(Part.LineSegment(V(79.975247, 117.653524, 0), V(72.451721, 117.653524, 0)), False)
sketch2.addGeometry(Part.LineSegment(V(82.448195, 117.653524, 0), V(82.451792, 2.48, 0)), False)
sketch2.addGeometry(Part.LineSegment(V(82.451792, 2.48, 0), V(89.971792, 2.48, 0)), False)
sketch2.addGeometry(Part.LineSegment(V(89.971792, 2.48, 0), V(89.971721, 117.653524, 0)), False)
sketch2.addGeometry(Part.LineSegment(V(89.971721, 117.653524, 0), V(82.448195, 117.653524, 0)), False)
sketch2.addGeometry(Part.LineSegment(V(92.444669, 117.653524, 0), V(92.448266, 2.48, 0)), False)
sketch2.addGeometry(Part.LineSegment(V(92.448266, 2.48, 0), V(99.968266, 2.48, 0)), False)
sketch2.addGeometry(Part.LineSegment(V(99.968266, 2.48, 0), V(99.968195, 117.653524, 0)), False)
sketch2.addGeometry(Part.LineSegment(V(99.968195, 117.653524, 0), V(92.444669, 117.653524, 0)), False)
sketch2.addGeometry(Part.LineSegment(V(102.441143, 117.653524, 0), V(102.44474, 2.48, 0)), False)
sketch2.addGeometry(Part.LineSegment(V(102.44474, 2.48, 0), V(109.96474, 2.48, 0)), False)
sketch2.addGeometry(Part.LineSegment(V(109.96474, 2.48, 0), V(109.964669, 117.653524, 0)), False)
sketch2.addGeometry(Part.LineSegment(V(109.964669, 117.653524, 0), V(102.441143, 117.653524, 0)), False)
sketch2.addGeometry(Part.LineSegment(V(22.469351, 117.653524, 0), V(22.472948, 2.48, 0)), False)
sketch2.addGeometry(Part.LineSegment(V(22.472948, 2.48, 0), V(29.992948, 2.48, 0)), False)
sketch2.addGeometry(Part.LineSegment(V(29.992948, 2.48, 0), V(29.992877, 117.653524, 0)), False)
sketch2.addGeometry(Part.LineSegment(V(29.992877, 117.653524, 0), V(22.469351, 117.653524, 0)), False)
sketch2.addConstraint(Sketcher.Constraint("Coincident", 0, 2, 1, 1))
sketch2.addConstraint(Sketcher.Constraint("Coincident", 1, 2, 2, 1))
sketch2.addConstraint(Sketcher.Constraint("Coincident", 2, 2, 3, 1))
sketch2.addConstraint(Sketcher.Constraint("Coincident", 3, 2, 0, 1))
sketch2.addConstraint(Sketcher.Constraint("Coincident", 4, 2, 5, 1))
sketch2.addConstraint(Sketcher.Constraint("Coincident", 5, 2, 6, 1))
sketch2.addConstraint(Sketcher.Constraint("Coincident", 6, 2, 7, 1))
sketch2.addConstraint(Sketcher.Constraint("Coincident", 7, 2, 4, 1))
sketch2.addConstraint(Sketcher.Constraint("Coincident", 8, 2, 9, 1))
sketch2.addConstraint(Sketcher.Constraint("Coincident", 9, 2, 10, 1))
sketch2.addConstraint(Sketcher.Constraint("Coincident", 10, 2, 11, 1))
sketch2.addConstraint(Sketcher.Constraint("Coincident", 11, 2, 8, 1))
sketch2.addConstraint(Sketcher.Constraint("Coincident", 12, 2, 13, 1))
sketch2.addConstraint(Sketcher.Constraint("Coincident", 13, 2, 14, 1))
sketch2.addConstraint(Sketcher.Constraint("Coincident", 14, 2, 15, 1))
sketch2.addConstraint(Sketcher.Constraint("Coincident", 15, 2, 12, 1))
sketch2.addConstraint(Sketcher.Constraint("Coincident", 16, 2, 17, 1))
sketch2.addConstraint(Sketcher.Constraint("Coincident", 17, 2, 18, 1))
sketch2.addConstraint(Sketcher.Constraint("Coincident", 18, 2, 19, 1))
sketch2.addConstraint(Sketcher.Constraint("Coincident", 19, 2, 16, 1))
sketch2.addConstraint(Sketcher.Constraint("Coincident", 20, 2, 21, 1))
sketch2.addConstraint(Sketcher.Constraint("Coincident", 21, 2, 22, 1))
sketch2.addConstraint(Sketcher.Constraint("Coincident", 22, 2, 23, 1))
sketch2.addConstraint(Sketcher.Constraint("Coincident", 23, 2, 20, 1))
sketch2.addConstraint(Sketcher.Constraint("Coincident", 24, 2, 25, 1))
sketch2.addConstraint(Sketcher.Constraint("Coincident", 25, 2, 26, 1))
sketch2.addConstraint(Sketcher.Constraint("Coincident", 26, 2, 27, 1))
sketch2.addConstraint(Sketcher.Constraint("Coincident", 27, 2, 24, 1))
sketch2.addConstraint(Sketcher.Constraint("Coincident", 28, 2, 29, 1))
sketch2.addConstraint(Sketcher.Constraint("Coincident", 29, 2, 30, 1))
sketch2.addConstraint(Sketcher.Constraint("Coincident", 30, 2, 31, 1))
sketch2.addConstraint(Sketcher.Constraint("Coincident", 31, 2, 28, 1))
sketch2.addConstraint(Sketcher.Constraint("Coincident", 32, 2, 33, 1))
sketch2.addConstraint(Sketcher.Constraint("Coincident", 33, 2, 34, 1))
sketch2.addConstraint(Sketcher.Constraint("Coincident", 34, 2, 35, 1))
sketch2.addConstraint(Sketcher.Constraint("Coincident", 35, 2, 32, 1))
sketch2.addConstraint(Sketcher.Constraint("Coincident", 36, 2, 37, 1))
sketch2.addConstraint(Sketcher.Constraint("Coincident", 37, 2, 38, 1))
sketch2.addConstraint(Sketcher.Constraint("Coincident", 38, 2, 39, 1))
sketch2.addConstraint(Sketcher.Constraint("Coincident", 39, 2, 36, 1))
sketch2.addConstraint(Sketcher.Constraint("Coincident", 40, 2, 41, 1))
sketch2.addConstraint(Sketcher.Constraint("Coincident", 41, 2, 42, 1))
sketch2.addConstraint(Sketcher.Constraint("Coincident", 42, 2, 43, 1))
sketch2.addConstraint(Sketcher.Constraint("Coincident", 43, 2, 40, 1))
sketch2.addConstraint(Sketcher.Constraint("Horizontal", 1))
sketch2.addConstraint(Sketcher.Constraint("Horizontal", 3))
sketch2.addConstraint(Sketcher.Constraint("Horizontal", 4))
sketch2.addConstraint(Sketcher.Constraint("Horizontal", 6))
sketch2.addConstraint(Sketcher.Constraint("Horizontal", 9))
sketch2.addConstraint(Sketcher.Constraint("Horizontal", 11))
sketch2.addConstraint(Sketcher.Constraint("Horizontal", 13))
sketch2.addConstraint(Sketcher.Constraint("Horizontal", 15))
sketch2.addConstraint(Sketcher.Constraint("Horizontal", 17))
sketch2.addConstraint(Sketcher.Constraint("Horizontal", 19))
sketch2.addConstraint(Sketcher.Constraint("Horizontal", 21))
sketch2.addConstraint(Sketcher.Constraint("Horizontal", 23))
sketch2.addConstraint(Sketcher.Constraint("Horizontal", 25))
sketch2.addConstraint(Sketcher.Constraint("Horizontal", 27))
sketch2.addConstraint(Sketcher.Constraint("Horizontal", 29))
sketch2.addConstraint(Sketcher.Constraint("Horizontal", 31))
sketch2.addConstraint(Sketcher.Constraint("Horizontal", 33))
sketch2.addConstraint(Sketcher.Constraint("Horizontal", 35))
sketch2.addConstraint(Sketcher.Constraint("Horizontal", 37))
sketch2.addConstraint(Sketcher.Constraint("Horizontal", 39))
sketch2.addConstraint(Sketcher.Constraint("Horizontal", 41))
sketch2.addConstraint(Sketcher.Constraint("Horizontal", 43))
sketch2.addConstraint(Sketcher.Constraint("Parallel", 0, 5))
sketch2.addConstraint(Sketcher.Constraint("Parallel", 2, 7))
sketch2.addConstraint(Sketcher.Constraint("Parallel", 5, 8))
sketch2.addConstraint(Sketcher.Constraint("Parallel", 7, 10))
sketch2.addConstraint(Sketcher.Constraint("Parallel", 8, 12))
sketch2.addConstraint(Sketcher.Constraint("Parallel", 10, 14))
sketch2.addConstraint(Sketcher.Constraint("Parallel", 12, 16))
sketch2.addConstraint(Sketcher.Constraint("Parallel", 14, 18))
sketch2.addConstraint(Sketcher.Constraint("Parallel", 16, 20))
sketch2.addConstraint(Sketcher.Constraint("Parallel", 18, 22))
sketch2.addConstraint(Sketcher.Constraint("Parallel", 20, 24))
sketch2.addConstraint(Sketcher.Constraint("Parallel", 22, 26))
sketch2.addConstraint(Sketcher.Constraint("Parallel", 24, 28))
sketch2.addConstraint(Sketcher.Constraint("Parallel", 26, 30))
sketch2.addConstraint(Sketcher.Constraint("Parallel", 28, 32))
sketch2.addConstraint(Sketcher.Constraint("Parallel", 30, 34))
sketch2.addConstraint(Sketcher.Constraint("Parallel", 32, 36))
sketch2.addConstraint(Sketcher.Constraint("Parallel", 34, 38))
sketch2.addConstraint(Sketcher.Constraint("Parallel", 36, 40))
sketch2.addConstraint(Sketcher.Constraint("Parallel", 38, 42))
sketch2.addConstraint(Sketcher.Constraint("Horizontal", 3, 2, 4, 2))
sketch2.addConstraint(Sketcher.Constraint("Horizontal", 1, 2, 5, 2))
sketch2.addConstraint(Sketcher.Constraint("Horizontal", 6, 2, 8, 2))
sketch2.addConstraint(Sketcher.Constraint("Horizontal", 7, 2, 10, 2))
sketch2.addConstraint(Sketcher.Constraint("Horizontal", 9, 2, 12, 2))
sketch2.addConstraint(Sketcher.Constraint("Horizontal", 11, 2, 14, 2))
sketch2.addConstraint(Sketcher.Constraint("Horizontal", 13, 2, 16, 2))
sketch2.addConstraint(Sketcher.Constraint("Horizontal", 15, 2, 18, 2))
sketch2.addConstraint(Sketcher.Constraint("Horizontal", 17, 2, 20, 2))
sketch2.addConstraint(Sketcher.Constraint("Horizontal", 19, 2, 22, 2))
sketch2.addConstraint(Sketcher.Constraint("Horizontal", 21, 2, 24, 2))
sketch2.addConstraint(Sketcher.Constraint("Horizontal", 23, 2, 26, 2))
sketch2.addConstraint(Sketcher.Constraint("Horizontal", 25, 2, 28, 2))
sketch2.addConstraint(Sketcher.Constraint("Horizontal", 27, 2, 30, 2))
sketch2.addConstraint(Sketcher.Constraint("Horizontal", 29, 2, 32, 2))
sketch2.addConstraint(Sketcher.Constraint("Horizontal", 31, 2, 34, 2))
sketch2.addConstraint(Sketcher.Constraint("Horizontal", 33, 2, 36, 2))
sketch2.addConstraint(Sketcher.Constraint("Horizontal", 35, 2, 38, 2))
sketch2.addConstraint(Sketcher.Constraint("Horizontal", 37, 2, 40, 2))
sketch2.addConstraint(Sketcher.Constraint("Horizontal", 39, 2, 42, 2))
sketch2.addConstraint(Sketcher.Constraint("Equal", 3, 4))
sketch2.addConstraint(Sketcher.Constraint("Equal", 6, 9))
sketch2.addConstraint(Sketcher.Constraint("Equal", 9, 13))
sketch2.addConstraint(Sketcher.Constraint("Equal", 13, 17))
sketch2.addConstraint(Sketcher.Constraint("Equal", 17, 21))
sketch2.addConstraint(Sketcher.Constraint("Equal", 21, 25))
sketch2.addConstraint(Sketcher.Constraint("Equal", 25, 29))
sketch2.addConstraint(Sketcher.Constraint("Equal", 29, 33))
sketch2.addConstraint(Sketcher.Constraint("Equal", 33, 37))
sketch2.addConstraint(Sketcher.Constraint("Equal", 37, 41))
sketch2.addConstraint(Sketcher.Constraint("DistanceX", -1, 1, 1, 2, 10.0))
sketch2.addConstraint(Sketcher.Constraint("DistanceX", 1, 1, 1, 2, 7.52))
sketch2.addConstraint(Sketcher.Constraint("DistanceY", -1, 1, 0, 2, 2.48))
sketch2.addConstraint(Sketcher.Constraint("DistanceX", 3, 2, 7, 2, 17.52))
sketch2.addConstraint(Sketcher.Constraint("DistanceX", 11, 2, 14, 2, 17.52))
sketch2.addConstraint(Sketcher.Constraint("DistanceX", 15, 2, 18, 2, 17.52))
sketch2.addConstraint(Sketcher.Constraint("DistanceX", 19, 2, 22, 2, 17.52))
sketch2.addConstraint(Sketcher.Constraint("DistanceX", 23, 2, 26, 2, 17.52))
sketch2.addConstraint(Sketcher.Constraint("DistanceX", 27, 2, 30, 2, 17.52))
sketch2.addConstraint(Sketcher.Constraint("DistanceX", 31, 2, 34, 2, 17.52))
sketch2.addConstraint(Sketcher.Constraint("DistanceX", 35, 2, 38, 2, 17.52))
sketch2.addConstraint(Sketcher.Constraint("DistanceX", 4, 2, 42, 2, 17.52))
sketch2.addConstraint(Sketcher.Constraint("DistanceX", -1, 1, 15, 2, 42.462299))
sketch2.addConstraint(Sketcher.Constraint("DistanceX", 3, 2, 3, 1, 7.523526))
sketch2.addConstraint(Sketcher.Constraint("DistanceX", -1, 1, 2, 2, 9.999929))
sketch2.addConstraint(Sketcher.Constraint("Distance", 0, 115.173524))
pocket1 = body.newObject("PartDesign::Pocket", "Pocket")
pocket1.Profile = sketch2
pocket1.Length = 2

doc.recompute()
